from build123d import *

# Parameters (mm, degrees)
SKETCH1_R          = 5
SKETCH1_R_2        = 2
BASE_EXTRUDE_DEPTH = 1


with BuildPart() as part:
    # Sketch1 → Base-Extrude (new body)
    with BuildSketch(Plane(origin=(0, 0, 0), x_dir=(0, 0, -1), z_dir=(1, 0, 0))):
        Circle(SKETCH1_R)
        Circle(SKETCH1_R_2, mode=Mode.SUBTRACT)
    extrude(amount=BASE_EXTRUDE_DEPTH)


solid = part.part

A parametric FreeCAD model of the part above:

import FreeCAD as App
import Part
import Sketcher

V = App.Vector
Q = App.Units.Quantity

doc = App.newDocument("Part")
body = doc.addObject("PartDesign::Body", "Body")

# Sketch on YZ plane
sketch1 = body.newObject("Sketcher::SketchObject", "Sketch")
sketch1.AttachmentSupport = (doc.getObject("YZ_Plane"), [""])
sketch1.MapMode = "FlatFace"
sketch1.addGeometry([
    Part.Circle(V(0, 0, 0), V(0, 0, 1), 5),
    Part.Circle(V(0, 0, 0), V(0, 0, 1), 2),
], False)
sketch1.addConstraint([
    Sketcher.Constraint("Coincident", 0, 3, -1, 1),
    Sketcher.Constraint("Coincident", 1, 3, -1, 1),
    Sketcher.Constraint("Diameter", 0, Q("10 mm")),
    Sketcher.Constraint("Diameter", 1, Q("4 mm")),
])
pad1 = body.newObject("PartDesign::Pad", "Pad")
pad1.Profile = sketch1
pad1.Length = 1

doc.recompute()
